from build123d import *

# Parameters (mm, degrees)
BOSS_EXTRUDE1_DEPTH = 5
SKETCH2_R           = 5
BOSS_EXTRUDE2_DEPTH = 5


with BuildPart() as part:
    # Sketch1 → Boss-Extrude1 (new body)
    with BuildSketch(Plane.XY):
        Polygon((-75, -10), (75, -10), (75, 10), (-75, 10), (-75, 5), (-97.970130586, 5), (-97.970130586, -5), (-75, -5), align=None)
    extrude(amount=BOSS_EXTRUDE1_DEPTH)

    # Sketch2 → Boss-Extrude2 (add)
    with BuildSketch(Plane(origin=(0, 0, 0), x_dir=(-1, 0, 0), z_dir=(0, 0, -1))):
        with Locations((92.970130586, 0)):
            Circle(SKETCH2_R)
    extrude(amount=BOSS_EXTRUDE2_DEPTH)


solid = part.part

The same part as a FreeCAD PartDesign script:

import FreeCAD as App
import Part
import Sketcher


def add_polygon(sketch, points):
    """Adds a closed chain of lines whose ends are joined by coincident constraints."""
    first, n = sketch.GeometryCount, len(points)
    for a, b in zip(points, points[1:] + points[:1]):
        sketch.addGeometry(Part.LineSegment(App.Vector(*a, 0), App.Vector(*b, 0)), False)
    for i in range(n):
        sketch.addConstraint(Sketcher.Constraint("Coincident", first + i, 2, first + (i + 1) % n, 1))

doc = App.newDocument("Part")
body = doc.addObject("PartDesign::Body", "Body")

# Sketch on XY plane
sketch1 = body.newObject("Sketcher::SketchObject", "Sketch")
sketch1.AttachmentSupport = (doc.getObject("XY_Plane"), [""])
sketch1.MapMode = "FlatFace"
add_polygon(sketch1, [(-75, -10), (75, -10), (75, 10), (-75, 10), (-75, 5), (-98, 5), (-98, -5), (-75, -5)])  # lines 0-7
sketch1.addConstraint(Sketcher.Constraint("Horizontal", 0))
sketch1.addConstraint(Sketcher.Constraint("Vertical", 1))
sketch1.addConstraint(Sketcher.Constraint("Horizontal", 2))
sketch1.addConstraint(Sketcher.Constraint("Vertical", 3))
sketch1.addConstraint(Sketcher.Constraint("Horizontal", 4))
sketch1.addConstraint(Sketcher.Constraint("Vertical", 5))
sketch1.addConstraint(Sketcher.Constraint("Horizontal", 6))
sketch1.addConstraint(Sketcher.Constraint("Vertical", 7))
sketch1.addConstraint(Sketcher.Constraint("Symmetric", 0, 2, 2, 2, -1, 1))
sketch1.addConstraint(Sketcher.Constraint("Symmetric", 3, 2, 6, 2, -1))
sketch1.addConstraint(Sketcher.Constraint("DistanceX", 0, 1, 0, 2, 150.0))
sketch1.addConstraint(Sketcher.Constraint("DistanceY", 1, 1, 1, 2, 20.0))
sketch1.addConstraint(Sketcher.Constraint("DistanceY", 3, 2, 3, 1, 5.0))
sketch1.addConstraint(Sketcher.Constraint("DistanceX", 4, 2, 4, 1, 22.970131))
pad1 = body.newObject("PartDesign::Pad", "Pad")
pad1.Profile = sketch1
pad1.Length = 5

# Sketch on XY plane
sketch2 = body.newObject("Sketcher::SketchObject", "Sketch001")
sketch2.AttachmentSupport = (doc.getObject("XY_Plane"), [""])
sketch2.MapMode = "FlatFace"
sketch2.addGeometry(Part.Circle(App.Vector(-93, 0, 0), App.Vector(0, 0, 1), 5), False)
sketch2.addConstraint(Sketcher.Constraint("PointOnObject", 0, 3, -1))
sketch2.addConstraint(Sketcher.Constraint("Diameter", 0, 10.0))
sketch2.addConstraint(Sketcher.Constraint("DistanceX", 0, 3, -1, 1, 92.970131))
pad2 = body.newObject("PartDesign::Pad", "Pad001")
pad2.Profile = sketch2
pad2.Length = 5
pad2.Reversed = True

doc.recompute()
